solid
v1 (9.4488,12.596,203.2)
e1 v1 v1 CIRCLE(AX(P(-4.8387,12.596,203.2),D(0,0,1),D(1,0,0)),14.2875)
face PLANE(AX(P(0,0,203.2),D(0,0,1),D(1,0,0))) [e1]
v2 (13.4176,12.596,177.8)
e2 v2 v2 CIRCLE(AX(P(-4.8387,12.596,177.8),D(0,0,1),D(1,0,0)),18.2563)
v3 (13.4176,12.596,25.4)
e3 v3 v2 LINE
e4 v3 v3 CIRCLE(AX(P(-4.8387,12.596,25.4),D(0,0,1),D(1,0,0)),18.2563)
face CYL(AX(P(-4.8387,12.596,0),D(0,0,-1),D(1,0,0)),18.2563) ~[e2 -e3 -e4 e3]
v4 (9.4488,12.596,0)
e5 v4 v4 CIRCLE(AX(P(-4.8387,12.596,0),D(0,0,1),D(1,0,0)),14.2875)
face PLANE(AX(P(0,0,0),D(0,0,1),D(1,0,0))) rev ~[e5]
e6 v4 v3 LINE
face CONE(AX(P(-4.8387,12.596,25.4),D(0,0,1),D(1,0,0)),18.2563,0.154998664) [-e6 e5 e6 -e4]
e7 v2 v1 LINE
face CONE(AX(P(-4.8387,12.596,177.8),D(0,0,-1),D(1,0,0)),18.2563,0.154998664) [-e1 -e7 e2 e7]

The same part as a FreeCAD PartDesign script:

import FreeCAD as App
import Part
import Sketcher
Q = App.Units.Quantity


def edges_at(feature, points):
    """Names of the edges that pass closest to the given points."""
    edges = feature.Shape.Edges
    near = lambda p: min(range(len(edges)), key=lambda i: edges[i].distToShape(Part.Vertex(*p))[0])
    return sorted({f"Edge{near(p) + 1}" for p in points})

doc = App.newDocument("Part")
params = doc.addObject("Spreadsheet::Sheet", "Params")
for row, (alias, value) in enumerate([
    ("sketch1_diameter", "1.4375 in"),
    ("pad1_length", "8 in"),
    ("chamfer_size", "0.156252 in"),
    ("chamfer_size2", "1 in"),
    ("chamfer2_size", "1 in"),
    ("chamfer2_size2", "0.156252 in"),
], start=1):
    params.set(f"A{row}", alias)
    params.set(f"B{row}", "=" + value)
    params.setAlias(f"B{row}", alias)

body = doc.addObject("PartDesign::Body", "Body")

sketch1 = body.newObject("Sketcher::SketchObject", "Sketch")
sketch1.AttachmentSupport = (doc.getObject("XY_Plane"), [""])
sketch1.MapMode = "FlatFace"
sketch1.addGeometry(Part.Circle(App.Vector(-4.8387, 12.596, 0), App.Vector(0, 0, 1), 18.2563), False)
sketch1.addConstraint(Sketcher.Constraint("Diameter", 0, Q("1.4375 in")))
sketch1.addConstraint(Sketcher.Constraint("DistanceX", 0, 3, -1, 1, Q("0.1905 in")))
sketch1.addConstraint(Sketcher.Constraint("DistanceY", -1, 1, 0, 3, Q("0.4959 in")))
sketch1.setExpression("Constraints[0]", "Params.sketch1_diameter")
pad1 = body.newObject("PartDesign::Pad", "Pad")
pad1.Profile = sketch1
pad1.setExpression("Length", "Params.pad1_length")
doc.recompute()

chamfer = body.newObject("PartDesign::Chamfer", "Chamfer")
chamfer.Base = (pad1, edges_at(pad1, [(-23.095, 12.596, 0)]))
chamfer.ChamferType = "Two distances"
chamfer.setExpression("Size", "Params.chamfer_size")
chamfer.setExpression("Size2", "Params.chamfer_size2")
chamfer.FlipDirection = True
doc.recompute()

chamfer2 = body.newObject("PartDesign::Chamfer", "Chamfer001")
chamfer2.Base = (chamfer, edges_at(chamfer, [(-23.095, 12.596, 203.2)]))
chamfer2.ChamferType = "Two distances"
chamfer2.setExpression("Size", "Params.chamfer2_size")
chamfer2.setExpression("Size2", "Params.chamfer2_size2")

doc.recompute()
